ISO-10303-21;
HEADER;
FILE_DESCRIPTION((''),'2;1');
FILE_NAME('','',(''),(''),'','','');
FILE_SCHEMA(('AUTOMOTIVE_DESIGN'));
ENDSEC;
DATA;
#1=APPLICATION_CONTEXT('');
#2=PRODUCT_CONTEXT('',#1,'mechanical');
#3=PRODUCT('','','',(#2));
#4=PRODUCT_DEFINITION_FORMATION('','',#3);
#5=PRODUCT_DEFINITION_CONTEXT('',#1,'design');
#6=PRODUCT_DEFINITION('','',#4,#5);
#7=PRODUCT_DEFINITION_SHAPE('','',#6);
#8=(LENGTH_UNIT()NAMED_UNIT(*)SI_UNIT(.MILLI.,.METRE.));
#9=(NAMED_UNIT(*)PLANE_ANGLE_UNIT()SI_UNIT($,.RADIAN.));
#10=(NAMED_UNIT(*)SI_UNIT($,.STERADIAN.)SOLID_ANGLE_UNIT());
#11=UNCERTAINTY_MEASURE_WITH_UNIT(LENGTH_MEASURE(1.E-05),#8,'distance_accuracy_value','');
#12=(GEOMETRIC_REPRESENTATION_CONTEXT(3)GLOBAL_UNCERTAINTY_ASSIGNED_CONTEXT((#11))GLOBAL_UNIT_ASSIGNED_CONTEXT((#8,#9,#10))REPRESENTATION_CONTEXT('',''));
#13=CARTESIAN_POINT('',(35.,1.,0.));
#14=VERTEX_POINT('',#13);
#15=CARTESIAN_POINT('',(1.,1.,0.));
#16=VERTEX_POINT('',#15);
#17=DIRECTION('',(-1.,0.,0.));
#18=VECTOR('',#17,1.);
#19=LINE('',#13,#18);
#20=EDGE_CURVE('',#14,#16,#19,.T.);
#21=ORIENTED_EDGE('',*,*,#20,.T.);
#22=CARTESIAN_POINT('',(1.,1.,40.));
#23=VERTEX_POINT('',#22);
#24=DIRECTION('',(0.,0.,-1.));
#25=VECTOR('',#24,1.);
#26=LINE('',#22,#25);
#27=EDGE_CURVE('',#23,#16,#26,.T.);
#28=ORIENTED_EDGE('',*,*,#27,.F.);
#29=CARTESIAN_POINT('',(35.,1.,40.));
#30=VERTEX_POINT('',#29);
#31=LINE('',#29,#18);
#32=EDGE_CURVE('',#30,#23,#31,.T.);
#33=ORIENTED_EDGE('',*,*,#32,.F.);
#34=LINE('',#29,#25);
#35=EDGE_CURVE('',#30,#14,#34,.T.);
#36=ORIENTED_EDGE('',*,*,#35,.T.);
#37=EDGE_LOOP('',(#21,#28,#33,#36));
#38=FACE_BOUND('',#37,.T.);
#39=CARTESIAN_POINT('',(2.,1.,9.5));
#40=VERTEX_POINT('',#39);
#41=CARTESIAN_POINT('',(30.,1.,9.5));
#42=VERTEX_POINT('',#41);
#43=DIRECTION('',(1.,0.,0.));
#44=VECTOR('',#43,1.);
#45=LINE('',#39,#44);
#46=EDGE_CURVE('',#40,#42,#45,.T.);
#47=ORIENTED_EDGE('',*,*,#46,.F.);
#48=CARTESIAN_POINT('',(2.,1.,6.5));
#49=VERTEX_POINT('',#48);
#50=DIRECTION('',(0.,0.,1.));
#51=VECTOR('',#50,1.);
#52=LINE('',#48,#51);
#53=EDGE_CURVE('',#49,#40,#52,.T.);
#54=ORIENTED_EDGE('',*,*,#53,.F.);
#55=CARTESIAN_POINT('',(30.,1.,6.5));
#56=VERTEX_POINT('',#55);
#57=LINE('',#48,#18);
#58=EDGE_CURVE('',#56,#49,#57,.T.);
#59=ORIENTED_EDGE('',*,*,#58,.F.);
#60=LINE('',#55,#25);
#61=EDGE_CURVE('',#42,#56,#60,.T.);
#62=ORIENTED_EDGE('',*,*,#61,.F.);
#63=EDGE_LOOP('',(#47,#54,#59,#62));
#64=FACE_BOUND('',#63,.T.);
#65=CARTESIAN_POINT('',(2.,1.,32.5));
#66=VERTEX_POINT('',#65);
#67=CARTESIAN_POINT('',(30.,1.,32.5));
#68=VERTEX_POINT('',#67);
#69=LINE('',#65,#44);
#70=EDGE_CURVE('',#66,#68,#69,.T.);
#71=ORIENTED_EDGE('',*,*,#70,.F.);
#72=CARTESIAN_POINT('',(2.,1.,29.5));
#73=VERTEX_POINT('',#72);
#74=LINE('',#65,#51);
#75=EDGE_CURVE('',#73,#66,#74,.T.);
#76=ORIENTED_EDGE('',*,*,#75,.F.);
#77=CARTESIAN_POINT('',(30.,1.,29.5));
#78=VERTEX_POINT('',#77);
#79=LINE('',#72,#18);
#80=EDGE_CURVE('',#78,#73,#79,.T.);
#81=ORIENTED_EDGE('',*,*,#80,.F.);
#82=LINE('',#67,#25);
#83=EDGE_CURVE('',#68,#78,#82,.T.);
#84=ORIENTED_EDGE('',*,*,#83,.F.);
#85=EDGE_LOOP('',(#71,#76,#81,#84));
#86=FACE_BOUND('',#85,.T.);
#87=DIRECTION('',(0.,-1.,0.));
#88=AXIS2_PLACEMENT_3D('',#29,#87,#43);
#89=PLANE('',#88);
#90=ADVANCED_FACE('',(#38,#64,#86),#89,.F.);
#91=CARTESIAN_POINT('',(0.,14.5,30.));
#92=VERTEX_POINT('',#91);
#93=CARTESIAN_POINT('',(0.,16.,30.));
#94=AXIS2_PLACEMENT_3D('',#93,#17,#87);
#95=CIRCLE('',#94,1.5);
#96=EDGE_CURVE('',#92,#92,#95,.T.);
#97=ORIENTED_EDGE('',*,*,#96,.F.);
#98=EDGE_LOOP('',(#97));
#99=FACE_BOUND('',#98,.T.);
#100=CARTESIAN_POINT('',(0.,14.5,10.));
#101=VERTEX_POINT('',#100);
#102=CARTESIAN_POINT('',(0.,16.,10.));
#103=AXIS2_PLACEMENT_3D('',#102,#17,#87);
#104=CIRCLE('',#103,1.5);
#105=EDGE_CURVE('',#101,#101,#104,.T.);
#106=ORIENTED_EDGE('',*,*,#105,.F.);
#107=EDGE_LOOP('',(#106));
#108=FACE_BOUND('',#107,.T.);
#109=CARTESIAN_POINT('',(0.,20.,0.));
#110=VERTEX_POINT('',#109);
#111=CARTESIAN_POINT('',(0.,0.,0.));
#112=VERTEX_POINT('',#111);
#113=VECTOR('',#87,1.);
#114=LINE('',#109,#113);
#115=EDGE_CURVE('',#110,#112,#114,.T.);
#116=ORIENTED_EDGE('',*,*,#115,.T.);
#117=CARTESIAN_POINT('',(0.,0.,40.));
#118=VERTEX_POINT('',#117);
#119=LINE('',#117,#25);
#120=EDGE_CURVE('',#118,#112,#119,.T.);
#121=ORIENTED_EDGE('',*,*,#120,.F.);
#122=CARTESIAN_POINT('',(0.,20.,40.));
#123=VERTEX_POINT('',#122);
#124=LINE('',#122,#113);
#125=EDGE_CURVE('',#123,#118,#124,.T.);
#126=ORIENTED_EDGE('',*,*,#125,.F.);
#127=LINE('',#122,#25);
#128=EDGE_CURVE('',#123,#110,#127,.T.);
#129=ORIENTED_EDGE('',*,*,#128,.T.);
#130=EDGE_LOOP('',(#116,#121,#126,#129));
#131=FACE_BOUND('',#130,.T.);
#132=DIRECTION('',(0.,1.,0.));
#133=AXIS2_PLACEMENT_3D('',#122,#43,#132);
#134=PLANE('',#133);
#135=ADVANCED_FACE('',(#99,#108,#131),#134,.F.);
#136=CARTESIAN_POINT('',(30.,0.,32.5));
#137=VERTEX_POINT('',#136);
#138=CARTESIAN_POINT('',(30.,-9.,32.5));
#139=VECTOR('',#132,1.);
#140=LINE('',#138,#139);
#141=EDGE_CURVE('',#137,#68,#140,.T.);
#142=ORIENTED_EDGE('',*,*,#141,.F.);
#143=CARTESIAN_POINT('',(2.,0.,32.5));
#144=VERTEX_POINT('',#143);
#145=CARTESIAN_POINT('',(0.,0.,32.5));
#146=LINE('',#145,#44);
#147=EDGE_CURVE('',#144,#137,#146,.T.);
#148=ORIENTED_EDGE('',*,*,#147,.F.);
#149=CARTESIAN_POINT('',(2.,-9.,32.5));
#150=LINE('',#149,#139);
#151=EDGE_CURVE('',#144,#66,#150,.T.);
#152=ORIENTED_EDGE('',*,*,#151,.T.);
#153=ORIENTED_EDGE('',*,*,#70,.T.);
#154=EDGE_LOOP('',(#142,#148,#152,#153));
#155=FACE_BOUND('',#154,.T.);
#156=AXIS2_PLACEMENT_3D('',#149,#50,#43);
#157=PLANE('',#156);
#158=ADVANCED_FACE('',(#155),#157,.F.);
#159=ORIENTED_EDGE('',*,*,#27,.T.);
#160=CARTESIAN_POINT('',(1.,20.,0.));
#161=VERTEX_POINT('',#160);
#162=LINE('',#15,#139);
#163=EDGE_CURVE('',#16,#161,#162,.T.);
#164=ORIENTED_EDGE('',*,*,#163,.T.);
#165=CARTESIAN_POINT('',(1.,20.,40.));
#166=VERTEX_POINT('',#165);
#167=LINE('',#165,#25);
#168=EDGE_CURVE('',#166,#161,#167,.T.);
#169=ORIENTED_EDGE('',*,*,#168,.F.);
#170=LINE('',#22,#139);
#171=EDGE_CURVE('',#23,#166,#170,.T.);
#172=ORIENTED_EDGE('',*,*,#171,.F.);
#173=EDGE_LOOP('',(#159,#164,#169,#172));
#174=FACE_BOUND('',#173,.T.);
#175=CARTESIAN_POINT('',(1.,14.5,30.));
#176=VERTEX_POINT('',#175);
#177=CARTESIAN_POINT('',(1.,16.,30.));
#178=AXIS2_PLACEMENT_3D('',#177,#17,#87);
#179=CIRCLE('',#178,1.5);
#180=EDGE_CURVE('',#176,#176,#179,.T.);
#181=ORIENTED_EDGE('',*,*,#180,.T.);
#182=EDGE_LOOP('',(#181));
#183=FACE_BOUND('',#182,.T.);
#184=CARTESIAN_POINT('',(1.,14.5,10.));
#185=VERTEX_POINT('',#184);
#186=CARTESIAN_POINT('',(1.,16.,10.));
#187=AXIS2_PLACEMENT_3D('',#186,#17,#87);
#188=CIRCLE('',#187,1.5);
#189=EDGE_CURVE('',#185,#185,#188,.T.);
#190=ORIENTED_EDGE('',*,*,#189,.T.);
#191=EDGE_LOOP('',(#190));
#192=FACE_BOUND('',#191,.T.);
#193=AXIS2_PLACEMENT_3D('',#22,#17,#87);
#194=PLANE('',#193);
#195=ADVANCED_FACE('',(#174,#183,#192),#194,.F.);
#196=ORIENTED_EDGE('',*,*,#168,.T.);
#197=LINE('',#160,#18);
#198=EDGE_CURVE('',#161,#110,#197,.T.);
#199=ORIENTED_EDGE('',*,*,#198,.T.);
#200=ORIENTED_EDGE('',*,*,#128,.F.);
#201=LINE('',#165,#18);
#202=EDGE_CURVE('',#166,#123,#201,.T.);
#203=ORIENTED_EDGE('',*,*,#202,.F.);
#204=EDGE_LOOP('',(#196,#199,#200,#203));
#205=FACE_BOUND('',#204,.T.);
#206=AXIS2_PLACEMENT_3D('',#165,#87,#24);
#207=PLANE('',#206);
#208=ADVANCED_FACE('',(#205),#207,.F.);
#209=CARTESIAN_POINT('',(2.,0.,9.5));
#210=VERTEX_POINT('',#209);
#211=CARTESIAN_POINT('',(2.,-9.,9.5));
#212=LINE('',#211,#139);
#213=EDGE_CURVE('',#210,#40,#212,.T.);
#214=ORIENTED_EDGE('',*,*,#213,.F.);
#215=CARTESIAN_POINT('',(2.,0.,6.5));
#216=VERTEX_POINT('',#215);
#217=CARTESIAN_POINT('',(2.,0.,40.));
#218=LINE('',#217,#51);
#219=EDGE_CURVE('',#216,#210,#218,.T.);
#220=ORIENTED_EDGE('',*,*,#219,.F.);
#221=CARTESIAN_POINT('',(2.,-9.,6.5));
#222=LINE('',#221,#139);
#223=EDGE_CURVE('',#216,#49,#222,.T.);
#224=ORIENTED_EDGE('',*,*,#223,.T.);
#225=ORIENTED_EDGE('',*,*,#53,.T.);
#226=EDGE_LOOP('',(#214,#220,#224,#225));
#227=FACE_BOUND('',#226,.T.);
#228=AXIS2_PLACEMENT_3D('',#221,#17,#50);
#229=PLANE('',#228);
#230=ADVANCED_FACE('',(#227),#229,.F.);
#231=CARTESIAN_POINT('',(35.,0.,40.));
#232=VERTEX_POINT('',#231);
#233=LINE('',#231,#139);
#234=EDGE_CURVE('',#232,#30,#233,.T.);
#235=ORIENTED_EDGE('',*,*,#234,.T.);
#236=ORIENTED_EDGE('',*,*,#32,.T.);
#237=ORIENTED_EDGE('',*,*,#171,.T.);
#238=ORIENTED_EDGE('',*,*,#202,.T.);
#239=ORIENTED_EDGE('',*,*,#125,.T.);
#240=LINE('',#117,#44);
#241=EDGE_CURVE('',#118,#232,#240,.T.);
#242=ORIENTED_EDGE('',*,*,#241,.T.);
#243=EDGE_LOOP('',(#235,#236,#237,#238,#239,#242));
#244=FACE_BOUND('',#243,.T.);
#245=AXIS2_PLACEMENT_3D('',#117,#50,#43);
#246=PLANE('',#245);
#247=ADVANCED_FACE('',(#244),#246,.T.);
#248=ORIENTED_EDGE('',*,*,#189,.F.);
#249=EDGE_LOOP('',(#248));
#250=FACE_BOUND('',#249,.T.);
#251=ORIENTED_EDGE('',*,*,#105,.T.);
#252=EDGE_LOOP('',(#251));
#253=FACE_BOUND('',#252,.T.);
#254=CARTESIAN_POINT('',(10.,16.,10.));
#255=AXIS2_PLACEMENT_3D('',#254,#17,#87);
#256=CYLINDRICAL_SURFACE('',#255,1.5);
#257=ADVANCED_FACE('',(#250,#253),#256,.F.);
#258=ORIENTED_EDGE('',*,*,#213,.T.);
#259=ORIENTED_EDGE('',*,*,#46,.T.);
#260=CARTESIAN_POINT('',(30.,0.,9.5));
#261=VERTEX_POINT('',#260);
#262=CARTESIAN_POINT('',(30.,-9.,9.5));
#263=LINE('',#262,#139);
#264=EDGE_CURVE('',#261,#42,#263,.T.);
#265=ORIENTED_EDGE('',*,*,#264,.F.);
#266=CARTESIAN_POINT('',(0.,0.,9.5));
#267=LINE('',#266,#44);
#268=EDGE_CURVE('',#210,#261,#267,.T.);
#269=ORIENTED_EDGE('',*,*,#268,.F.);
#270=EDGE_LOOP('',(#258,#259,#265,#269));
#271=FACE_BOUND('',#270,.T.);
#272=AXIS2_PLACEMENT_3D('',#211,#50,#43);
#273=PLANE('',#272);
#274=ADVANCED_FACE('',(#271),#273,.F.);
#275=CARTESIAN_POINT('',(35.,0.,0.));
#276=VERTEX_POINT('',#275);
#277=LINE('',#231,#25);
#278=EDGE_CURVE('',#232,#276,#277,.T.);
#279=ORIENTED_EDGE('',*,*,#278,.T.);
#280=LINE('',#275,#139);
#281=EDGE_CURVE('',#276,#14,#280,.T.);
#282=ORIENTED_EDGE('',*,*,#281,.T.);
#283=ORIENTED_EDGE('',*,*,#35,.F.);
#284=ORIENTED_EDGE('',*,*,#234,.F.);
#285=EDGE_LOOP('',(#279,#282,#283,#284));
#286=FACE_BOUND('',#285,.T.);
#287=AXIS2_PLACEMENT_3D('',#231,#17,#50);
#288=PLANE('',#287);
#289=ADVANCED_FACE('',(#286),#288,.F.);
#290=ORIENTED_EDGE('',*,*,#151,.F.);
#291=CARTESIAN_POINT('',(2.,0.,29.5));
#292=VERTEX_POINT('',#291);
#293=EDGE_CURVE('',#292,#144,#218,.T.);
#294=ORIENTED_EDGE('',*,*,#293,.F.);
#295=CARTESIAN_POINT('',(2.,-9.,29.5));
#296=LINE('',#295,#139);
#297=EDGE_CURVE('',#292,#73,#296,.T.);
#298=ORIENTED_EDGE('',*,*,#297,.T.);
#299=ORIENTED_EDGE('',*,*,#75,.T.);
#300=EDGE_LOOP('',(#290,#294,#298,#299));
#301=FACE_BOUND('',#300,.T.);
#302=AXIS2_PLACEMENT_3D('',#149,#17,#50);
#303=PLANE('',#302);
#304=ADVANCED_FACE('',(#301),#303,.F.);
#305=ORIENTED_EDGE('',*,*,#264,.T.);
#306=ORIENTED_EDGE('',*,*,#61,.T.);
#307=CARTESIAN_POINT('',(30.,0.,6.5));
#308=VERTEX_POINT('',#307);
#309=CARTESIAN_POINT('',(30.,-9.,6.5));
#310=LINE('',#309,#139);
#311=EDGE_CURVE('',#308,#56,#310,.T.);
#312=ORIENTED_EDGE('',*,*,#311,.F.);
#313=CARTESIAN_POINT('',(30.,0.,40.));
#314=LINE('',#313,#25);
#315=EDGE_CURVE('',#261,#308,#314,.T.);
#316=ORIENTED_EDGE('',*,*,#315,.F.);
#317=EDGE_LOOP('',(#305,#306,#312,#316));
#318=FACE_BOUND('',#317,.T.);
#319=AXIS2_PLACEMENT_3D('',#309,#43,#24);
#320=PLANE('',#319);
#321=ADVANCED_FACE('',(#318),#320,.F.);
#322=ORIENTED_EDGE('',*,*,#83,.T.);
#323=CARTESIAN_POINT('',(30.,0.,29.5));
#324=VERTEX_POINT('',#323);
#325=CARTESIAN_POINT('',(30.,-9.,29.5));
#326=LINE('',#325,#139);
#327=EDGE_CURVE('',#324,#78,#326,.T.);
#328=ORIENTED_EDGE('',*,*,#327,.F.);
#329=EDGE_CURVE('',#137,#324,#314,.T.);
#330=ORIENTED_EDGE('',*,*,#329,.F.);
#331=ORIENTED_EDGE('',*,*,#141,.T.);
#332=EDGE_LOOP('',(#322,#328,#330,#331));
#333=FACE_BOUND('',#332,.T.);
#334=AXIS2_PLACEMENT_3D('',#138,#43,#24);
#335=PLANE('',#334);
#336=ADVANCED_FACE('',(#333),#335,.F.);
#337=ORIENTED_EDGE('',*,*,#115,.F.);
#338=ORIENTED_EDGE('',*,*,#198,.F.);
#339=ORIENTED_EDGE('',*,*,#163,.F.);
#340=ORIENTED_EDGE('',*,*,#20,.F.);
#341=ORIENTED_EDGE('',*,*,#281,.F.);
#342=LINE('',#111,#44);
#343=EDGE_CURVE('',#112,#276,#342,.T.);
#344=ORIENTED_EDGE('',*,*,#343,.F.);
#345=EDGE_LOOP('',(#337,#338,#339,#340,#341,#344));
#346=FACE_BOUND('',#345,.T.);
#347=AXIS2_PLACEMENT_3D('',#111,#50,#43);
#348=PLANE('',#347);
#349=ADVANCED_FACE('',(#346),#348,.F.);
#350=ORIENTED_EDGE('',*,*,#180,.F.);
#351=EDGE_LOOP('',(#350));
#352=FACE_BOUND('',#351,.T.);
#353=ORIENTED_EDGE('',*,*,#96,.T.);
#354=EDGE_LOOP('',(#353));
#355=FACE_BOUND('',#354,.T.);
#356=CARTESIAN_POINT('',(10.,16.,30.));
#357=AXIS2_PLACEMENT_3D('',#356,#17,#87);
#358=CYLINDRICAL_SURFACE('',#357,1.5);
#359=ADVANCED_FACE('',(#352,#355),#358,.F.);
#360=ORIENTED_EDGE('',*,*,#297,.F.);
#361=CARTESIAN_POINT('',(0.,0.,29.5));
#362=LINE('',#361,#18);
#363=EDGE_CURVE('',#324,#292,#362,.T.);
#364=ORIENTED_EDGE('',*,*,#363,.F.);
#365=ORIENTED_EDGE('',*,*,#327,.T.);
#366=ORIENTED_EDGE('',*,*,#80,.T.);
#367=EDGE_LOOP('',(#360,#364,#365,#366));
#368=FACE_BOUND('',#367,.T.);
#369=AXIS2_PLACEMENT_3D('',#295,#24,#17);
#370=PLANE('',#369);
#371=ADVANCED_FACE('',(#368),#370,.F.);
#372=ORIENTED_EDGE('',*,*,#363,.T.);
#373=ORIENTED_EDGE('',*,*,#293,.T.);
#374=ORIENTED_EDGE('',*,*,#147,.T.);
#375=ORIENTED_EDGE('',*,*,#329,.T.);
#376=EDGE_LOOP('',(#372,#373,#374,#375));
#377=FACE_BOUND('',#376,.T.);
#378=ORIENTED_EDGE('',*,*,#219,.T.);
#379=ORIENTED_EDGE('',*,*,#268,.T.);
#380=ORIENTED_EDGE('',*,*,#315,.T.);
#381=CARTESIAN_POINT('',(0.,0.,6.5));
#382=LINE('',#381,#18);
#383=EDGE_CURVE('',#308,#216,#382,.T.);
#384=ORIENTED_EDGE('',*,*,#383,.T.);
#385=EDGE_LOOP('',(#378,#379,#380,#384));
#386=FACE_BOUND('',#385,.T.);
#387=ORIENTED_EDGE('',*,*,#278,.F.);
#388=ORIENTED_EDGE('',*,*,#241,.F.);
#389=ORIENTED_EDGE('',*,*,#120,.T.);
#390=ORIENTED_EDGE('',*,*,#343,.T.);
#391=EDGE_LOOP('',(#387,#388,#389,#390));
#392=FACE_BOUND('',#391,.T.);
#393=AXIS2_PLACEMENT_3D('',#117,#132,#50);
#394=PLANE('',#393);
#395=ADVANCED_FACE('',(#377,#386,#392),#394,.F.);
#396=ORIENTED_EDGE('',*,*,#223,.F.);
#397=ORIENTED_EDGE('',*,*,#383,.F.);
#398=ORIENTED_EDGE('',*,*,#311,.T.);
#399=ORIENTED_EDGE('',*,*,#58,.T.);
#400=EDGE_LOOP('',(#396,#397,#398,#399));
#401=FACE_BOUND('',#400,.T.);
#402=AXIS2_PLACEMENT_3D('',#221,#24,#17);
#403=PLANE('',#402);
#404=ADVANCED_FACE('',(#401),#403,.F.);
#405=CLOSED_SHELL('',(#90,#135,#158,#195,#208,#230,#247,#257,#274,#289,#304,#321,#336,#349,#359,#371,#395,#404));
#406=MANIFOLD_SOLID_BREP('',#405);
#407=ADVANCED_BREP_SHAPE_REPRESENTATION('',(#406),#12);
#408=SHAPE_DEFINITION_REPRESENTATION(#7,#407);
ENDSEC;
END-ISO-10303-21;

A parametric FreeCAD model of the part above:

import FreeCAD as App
import Part
import Sketcher

doc = App.newDocument("Part")
params = doc.addObject("Spreadsheet::Sheet", "Params")
for row, (alias, value) in enumerate([
    ("sketch1_width", "35 mm"),
    ("sketch1_width2", "34 mm"),
    ("sketch1_height", "19 mm"),
    ("pad1_length", "40 mm"),
    ("sketch2_width", "28 mm"),
    ("sketch2_height", "3 mm"),
    ("pocket1_length", "10 mm"),
    ("sketch3_diameter", "3 mm"),
    ("pocket2_length", "10 mm"),
], start=1):
    params.set(f"A{row}", alias)
    params.set(f"B{row}", "=" + value)
    params.setAlias(f"B{row}", alias)

body = doc.addObject("PartDesign::Body", "Body")

# Sketch on XY plane
sketch1 = body.newObject("Sketcher::SketchObject", "Sketch")
sketch1.AttachmentSupport = (doc.getObject("XY_Plane"), [""])
sketch1.MapMode = "FlatFace"
sketch1.addGeometry([
    Part.LineSegment(App.Vector(0, 0, 0), App.Vector(35, 0, 0)),  # 0
    Part.LineSegment(App.Vector(35, 0, 0), App.Vector(35, 1, 0)),  # 1
    Part.LineSegment(App.Vector(35, 1, 0), App.Vector(1, 1, 0)),  # 2
    Part.LineSegment(App.Vector(1, 1, 0), App.Vector(1, 20, 0)),  # 3
    Part.LineSegment(App.Vector(1, 20, 0), App.Vector(0, 20, 0)),  # 4
    Part.LineSegment(App.Vector(0, 20, 0), App.Vector(0, 0, 0)),  # 5
], False)
sketch1.addConstraint([
    Sketcher.Constraint("Coincident", 0, 2, 1, 1),
    Sketcher.Constraint("Coincident", 1, 2, 2, 1),
    Sketcher.Constraint("Coincident", 2, 2, 3, 1),
    Sketcher.Constraint("Coincident", 3, 2, 4, 1),
    Sketcher.Constraint("Coincident", 4, 2, 5, 1),
    Sketcher.Constraint("Coincident", 5, 2, 0, 1),
    Sketcher.Constraint("Horizontal", 0),
    Sketcher.Constraint("Vertical", 1),
    Sketcher.Constraint("Horizontal", 2),
    Sketcher.Constraint("Vertical", 3),
    Sketcher.Constraint("Horizontal", 4),
    Sketcher.Constraint("Vertical", 5),
    Sketcher.Constraint("Coincident", 5, 2, -1, 1),
    Sketcher.Constraint("Equal", 4, 1),
    Sketcher.Constraint("DistanceX", 0, 1, 0, 2, 35.0),
    Sketcher.Constraint("DistanceX", 2, 2, 2, 1, 34.0),
    Sketcher.Constraint("DistanceY", 3, 1, 3, 2, 19.0),
])
sketch1.setExpression("Constraints[14]", "Params.sketch1_width")
sketch1.setExpression("Constraints[15]", "Params.sketch1_width2")
sketch1.setExpression("Constraints[16]", "Params.sketch1_height")
pad1 = body.newObject("PartDesign::Pad", "Pad")
pad1.Profile = sketch1
pad1.setExpression("Length", "Params.pad1_length")

# Sketch on XZ plane
sketch2 = body.newObject("Sketcher::SketchObject", "Sketch001")
sketch2.AttachmentSupport = (doc.getObject("XZ_Plane"), [""])
sketch2.MapMode = "FlatFace"
sketch2.AttachmentOffset = App.Placement(App.Vector(0, 0, -1), App.Rotation())
sketch2.addGeometry([
    Part.LineSegment(App.Vector(2, 6.5, 0), App.Vector(2, 9.5, 0)),  # 0
    Part.LineSegment(App.Vector(2, 9.5, 0), App.Vector(30, 9.5, 0)),  # 1
    Part.LineSegment(App.Vector(30, 9.5, 0), App.Vector(30, 6.5, 0)),  # 2
    Part.LineSegment(App.Vector(30, 6.5, 0), App.Vector(2, 6.5, 0)),  # 3
    Part.LineSegment(App.Vector(2, 29.5, 0), App.Vector(2, 32.5, 0)),  # 4
    Part.LineSegment(App.Vector(2, 32.5, 0), App.Vector(30, 32.5, 0)),  # 5
    Part.LineSegment(App.Vector(30, 32.5, 0), App.Vector(30, 29.5, 0)),  # 6
    Part.LineSegment(App.Vector(30, 29.5, 0), App.Vector(2, 29.5, 0)),  # 7
], False)
sketch2.addConstraint([
    Sketcher.Constraint("Coincident", 0, 2, 1, 1),
    Sketcher.Constraint("Coincident", 1, 2, 2, 1),
    Sketcher.Constraint("Coincident", 2, 2, 3, 1),
    Sketcher.Constraint("Coincident", 3, 2, 0, 1),
    Sketcher.Constraint("Coincident", 4, 2, 5, 1),
    Sketcher.Constraint("Coincident", 5, 2, 6, 1),
    Sketcher.Constraint("Coincident", 6, 2, 7, 1),
    Sketcher.Constraint("Coincident", 7, 2, 4, 1),
    Sketcher.Constraint("Vertical", 0),
    Sketcher.Constraint("Horizontal", 1),
    Sketcher.Constraint("Vertical", 2),
    Sketcher.Constraint("Horizontal", 3),
    Sketcher.Constraint("Vertical", 4),
    Sketcher.Constraint("Horizontal", 5),
    Sketcher.Constraint("Vertical", 6),
    Sketcher.Constraint("Horizontal", 7),
    Sketcher.Constraint("Vertical", 3, 2, 4, 2),
    Sketcher.Constraint("Vertical", 2, 2, 5, 2),
    Sketcher.Constraint("Equal", 2, 4),
    Sketcher.Constraint("DistanceX", 1, 1, 1, 2, 28.0),
    Sketcher.Constraint("DistanceY", 0, 1, 0, 2, 3.0),
    Sketcher.Constraint("DistanceX", -1, 1, 0, 2, 2.0),
    Sketcher.Constraint("DistanceY", 0, 2, 4, 2, 23.0),
    Sketcher.Constraint("DistanceY", -1, 1, 0, 2, 9.5),
])
sketch2.setExpression("Constraints[19]", "Params.sketch2_width")
sketch2.setExpression("Constraints[20]", "Params.sketch2_height")
pocket1 = body.newObject("PartDesign::Pocket", "Pocket")
pocket1.Profile = sketch2
pocket1.setExpression("Length", "Params.pocket1_length")
pocket1.Reversed = True

# Sketch on YZ plane
sketch3 = body.newObject("Sketcher::SketchObject", "Sketch002")
sketch3.AttachmentSupport = (doc.getObject("YZ_Plane"), [""])
sketch3.MapMode = "FlatFace"
sketch3.addGeometry([
    Part.Circle(App.Vector(16, 30, 0), App.Vector(0, 0, 1), 1.5),
    Part.Circle(App.Vector(16, 10, 0), App.Vector(0, 0, 1), 1.5),
], False)
sketch3.addConstraint([
    Sketcher.Constraint("Equal", 0, 1),
    Sketcher.Constraint("Vertical", 0, 3, 1, 3),
    Sketcher.Constraint("Diameter", 0, 3.0),
    Sketcher.Constraint("DistanceX", -1, 1, 0, 3, 16.0),
    Sketcher.Constraint("DistanceY", -1, 1, 0, 3, 30.0),
    Sketcher.Constraint("DistanceY", -1, 1, 1, 3, 10.0),
])
sketch3.setExpression("Constraints[2]", "Params.sketch3_diameter")
pocket2 = body.newObject("PartDesign::Pocket", "Pocket001")
pocket2.Profile = sketch3
pocket2.setExpression("Length", "Params.pocket2_length")
pocket2.Reversed = True

doc.recompute()
